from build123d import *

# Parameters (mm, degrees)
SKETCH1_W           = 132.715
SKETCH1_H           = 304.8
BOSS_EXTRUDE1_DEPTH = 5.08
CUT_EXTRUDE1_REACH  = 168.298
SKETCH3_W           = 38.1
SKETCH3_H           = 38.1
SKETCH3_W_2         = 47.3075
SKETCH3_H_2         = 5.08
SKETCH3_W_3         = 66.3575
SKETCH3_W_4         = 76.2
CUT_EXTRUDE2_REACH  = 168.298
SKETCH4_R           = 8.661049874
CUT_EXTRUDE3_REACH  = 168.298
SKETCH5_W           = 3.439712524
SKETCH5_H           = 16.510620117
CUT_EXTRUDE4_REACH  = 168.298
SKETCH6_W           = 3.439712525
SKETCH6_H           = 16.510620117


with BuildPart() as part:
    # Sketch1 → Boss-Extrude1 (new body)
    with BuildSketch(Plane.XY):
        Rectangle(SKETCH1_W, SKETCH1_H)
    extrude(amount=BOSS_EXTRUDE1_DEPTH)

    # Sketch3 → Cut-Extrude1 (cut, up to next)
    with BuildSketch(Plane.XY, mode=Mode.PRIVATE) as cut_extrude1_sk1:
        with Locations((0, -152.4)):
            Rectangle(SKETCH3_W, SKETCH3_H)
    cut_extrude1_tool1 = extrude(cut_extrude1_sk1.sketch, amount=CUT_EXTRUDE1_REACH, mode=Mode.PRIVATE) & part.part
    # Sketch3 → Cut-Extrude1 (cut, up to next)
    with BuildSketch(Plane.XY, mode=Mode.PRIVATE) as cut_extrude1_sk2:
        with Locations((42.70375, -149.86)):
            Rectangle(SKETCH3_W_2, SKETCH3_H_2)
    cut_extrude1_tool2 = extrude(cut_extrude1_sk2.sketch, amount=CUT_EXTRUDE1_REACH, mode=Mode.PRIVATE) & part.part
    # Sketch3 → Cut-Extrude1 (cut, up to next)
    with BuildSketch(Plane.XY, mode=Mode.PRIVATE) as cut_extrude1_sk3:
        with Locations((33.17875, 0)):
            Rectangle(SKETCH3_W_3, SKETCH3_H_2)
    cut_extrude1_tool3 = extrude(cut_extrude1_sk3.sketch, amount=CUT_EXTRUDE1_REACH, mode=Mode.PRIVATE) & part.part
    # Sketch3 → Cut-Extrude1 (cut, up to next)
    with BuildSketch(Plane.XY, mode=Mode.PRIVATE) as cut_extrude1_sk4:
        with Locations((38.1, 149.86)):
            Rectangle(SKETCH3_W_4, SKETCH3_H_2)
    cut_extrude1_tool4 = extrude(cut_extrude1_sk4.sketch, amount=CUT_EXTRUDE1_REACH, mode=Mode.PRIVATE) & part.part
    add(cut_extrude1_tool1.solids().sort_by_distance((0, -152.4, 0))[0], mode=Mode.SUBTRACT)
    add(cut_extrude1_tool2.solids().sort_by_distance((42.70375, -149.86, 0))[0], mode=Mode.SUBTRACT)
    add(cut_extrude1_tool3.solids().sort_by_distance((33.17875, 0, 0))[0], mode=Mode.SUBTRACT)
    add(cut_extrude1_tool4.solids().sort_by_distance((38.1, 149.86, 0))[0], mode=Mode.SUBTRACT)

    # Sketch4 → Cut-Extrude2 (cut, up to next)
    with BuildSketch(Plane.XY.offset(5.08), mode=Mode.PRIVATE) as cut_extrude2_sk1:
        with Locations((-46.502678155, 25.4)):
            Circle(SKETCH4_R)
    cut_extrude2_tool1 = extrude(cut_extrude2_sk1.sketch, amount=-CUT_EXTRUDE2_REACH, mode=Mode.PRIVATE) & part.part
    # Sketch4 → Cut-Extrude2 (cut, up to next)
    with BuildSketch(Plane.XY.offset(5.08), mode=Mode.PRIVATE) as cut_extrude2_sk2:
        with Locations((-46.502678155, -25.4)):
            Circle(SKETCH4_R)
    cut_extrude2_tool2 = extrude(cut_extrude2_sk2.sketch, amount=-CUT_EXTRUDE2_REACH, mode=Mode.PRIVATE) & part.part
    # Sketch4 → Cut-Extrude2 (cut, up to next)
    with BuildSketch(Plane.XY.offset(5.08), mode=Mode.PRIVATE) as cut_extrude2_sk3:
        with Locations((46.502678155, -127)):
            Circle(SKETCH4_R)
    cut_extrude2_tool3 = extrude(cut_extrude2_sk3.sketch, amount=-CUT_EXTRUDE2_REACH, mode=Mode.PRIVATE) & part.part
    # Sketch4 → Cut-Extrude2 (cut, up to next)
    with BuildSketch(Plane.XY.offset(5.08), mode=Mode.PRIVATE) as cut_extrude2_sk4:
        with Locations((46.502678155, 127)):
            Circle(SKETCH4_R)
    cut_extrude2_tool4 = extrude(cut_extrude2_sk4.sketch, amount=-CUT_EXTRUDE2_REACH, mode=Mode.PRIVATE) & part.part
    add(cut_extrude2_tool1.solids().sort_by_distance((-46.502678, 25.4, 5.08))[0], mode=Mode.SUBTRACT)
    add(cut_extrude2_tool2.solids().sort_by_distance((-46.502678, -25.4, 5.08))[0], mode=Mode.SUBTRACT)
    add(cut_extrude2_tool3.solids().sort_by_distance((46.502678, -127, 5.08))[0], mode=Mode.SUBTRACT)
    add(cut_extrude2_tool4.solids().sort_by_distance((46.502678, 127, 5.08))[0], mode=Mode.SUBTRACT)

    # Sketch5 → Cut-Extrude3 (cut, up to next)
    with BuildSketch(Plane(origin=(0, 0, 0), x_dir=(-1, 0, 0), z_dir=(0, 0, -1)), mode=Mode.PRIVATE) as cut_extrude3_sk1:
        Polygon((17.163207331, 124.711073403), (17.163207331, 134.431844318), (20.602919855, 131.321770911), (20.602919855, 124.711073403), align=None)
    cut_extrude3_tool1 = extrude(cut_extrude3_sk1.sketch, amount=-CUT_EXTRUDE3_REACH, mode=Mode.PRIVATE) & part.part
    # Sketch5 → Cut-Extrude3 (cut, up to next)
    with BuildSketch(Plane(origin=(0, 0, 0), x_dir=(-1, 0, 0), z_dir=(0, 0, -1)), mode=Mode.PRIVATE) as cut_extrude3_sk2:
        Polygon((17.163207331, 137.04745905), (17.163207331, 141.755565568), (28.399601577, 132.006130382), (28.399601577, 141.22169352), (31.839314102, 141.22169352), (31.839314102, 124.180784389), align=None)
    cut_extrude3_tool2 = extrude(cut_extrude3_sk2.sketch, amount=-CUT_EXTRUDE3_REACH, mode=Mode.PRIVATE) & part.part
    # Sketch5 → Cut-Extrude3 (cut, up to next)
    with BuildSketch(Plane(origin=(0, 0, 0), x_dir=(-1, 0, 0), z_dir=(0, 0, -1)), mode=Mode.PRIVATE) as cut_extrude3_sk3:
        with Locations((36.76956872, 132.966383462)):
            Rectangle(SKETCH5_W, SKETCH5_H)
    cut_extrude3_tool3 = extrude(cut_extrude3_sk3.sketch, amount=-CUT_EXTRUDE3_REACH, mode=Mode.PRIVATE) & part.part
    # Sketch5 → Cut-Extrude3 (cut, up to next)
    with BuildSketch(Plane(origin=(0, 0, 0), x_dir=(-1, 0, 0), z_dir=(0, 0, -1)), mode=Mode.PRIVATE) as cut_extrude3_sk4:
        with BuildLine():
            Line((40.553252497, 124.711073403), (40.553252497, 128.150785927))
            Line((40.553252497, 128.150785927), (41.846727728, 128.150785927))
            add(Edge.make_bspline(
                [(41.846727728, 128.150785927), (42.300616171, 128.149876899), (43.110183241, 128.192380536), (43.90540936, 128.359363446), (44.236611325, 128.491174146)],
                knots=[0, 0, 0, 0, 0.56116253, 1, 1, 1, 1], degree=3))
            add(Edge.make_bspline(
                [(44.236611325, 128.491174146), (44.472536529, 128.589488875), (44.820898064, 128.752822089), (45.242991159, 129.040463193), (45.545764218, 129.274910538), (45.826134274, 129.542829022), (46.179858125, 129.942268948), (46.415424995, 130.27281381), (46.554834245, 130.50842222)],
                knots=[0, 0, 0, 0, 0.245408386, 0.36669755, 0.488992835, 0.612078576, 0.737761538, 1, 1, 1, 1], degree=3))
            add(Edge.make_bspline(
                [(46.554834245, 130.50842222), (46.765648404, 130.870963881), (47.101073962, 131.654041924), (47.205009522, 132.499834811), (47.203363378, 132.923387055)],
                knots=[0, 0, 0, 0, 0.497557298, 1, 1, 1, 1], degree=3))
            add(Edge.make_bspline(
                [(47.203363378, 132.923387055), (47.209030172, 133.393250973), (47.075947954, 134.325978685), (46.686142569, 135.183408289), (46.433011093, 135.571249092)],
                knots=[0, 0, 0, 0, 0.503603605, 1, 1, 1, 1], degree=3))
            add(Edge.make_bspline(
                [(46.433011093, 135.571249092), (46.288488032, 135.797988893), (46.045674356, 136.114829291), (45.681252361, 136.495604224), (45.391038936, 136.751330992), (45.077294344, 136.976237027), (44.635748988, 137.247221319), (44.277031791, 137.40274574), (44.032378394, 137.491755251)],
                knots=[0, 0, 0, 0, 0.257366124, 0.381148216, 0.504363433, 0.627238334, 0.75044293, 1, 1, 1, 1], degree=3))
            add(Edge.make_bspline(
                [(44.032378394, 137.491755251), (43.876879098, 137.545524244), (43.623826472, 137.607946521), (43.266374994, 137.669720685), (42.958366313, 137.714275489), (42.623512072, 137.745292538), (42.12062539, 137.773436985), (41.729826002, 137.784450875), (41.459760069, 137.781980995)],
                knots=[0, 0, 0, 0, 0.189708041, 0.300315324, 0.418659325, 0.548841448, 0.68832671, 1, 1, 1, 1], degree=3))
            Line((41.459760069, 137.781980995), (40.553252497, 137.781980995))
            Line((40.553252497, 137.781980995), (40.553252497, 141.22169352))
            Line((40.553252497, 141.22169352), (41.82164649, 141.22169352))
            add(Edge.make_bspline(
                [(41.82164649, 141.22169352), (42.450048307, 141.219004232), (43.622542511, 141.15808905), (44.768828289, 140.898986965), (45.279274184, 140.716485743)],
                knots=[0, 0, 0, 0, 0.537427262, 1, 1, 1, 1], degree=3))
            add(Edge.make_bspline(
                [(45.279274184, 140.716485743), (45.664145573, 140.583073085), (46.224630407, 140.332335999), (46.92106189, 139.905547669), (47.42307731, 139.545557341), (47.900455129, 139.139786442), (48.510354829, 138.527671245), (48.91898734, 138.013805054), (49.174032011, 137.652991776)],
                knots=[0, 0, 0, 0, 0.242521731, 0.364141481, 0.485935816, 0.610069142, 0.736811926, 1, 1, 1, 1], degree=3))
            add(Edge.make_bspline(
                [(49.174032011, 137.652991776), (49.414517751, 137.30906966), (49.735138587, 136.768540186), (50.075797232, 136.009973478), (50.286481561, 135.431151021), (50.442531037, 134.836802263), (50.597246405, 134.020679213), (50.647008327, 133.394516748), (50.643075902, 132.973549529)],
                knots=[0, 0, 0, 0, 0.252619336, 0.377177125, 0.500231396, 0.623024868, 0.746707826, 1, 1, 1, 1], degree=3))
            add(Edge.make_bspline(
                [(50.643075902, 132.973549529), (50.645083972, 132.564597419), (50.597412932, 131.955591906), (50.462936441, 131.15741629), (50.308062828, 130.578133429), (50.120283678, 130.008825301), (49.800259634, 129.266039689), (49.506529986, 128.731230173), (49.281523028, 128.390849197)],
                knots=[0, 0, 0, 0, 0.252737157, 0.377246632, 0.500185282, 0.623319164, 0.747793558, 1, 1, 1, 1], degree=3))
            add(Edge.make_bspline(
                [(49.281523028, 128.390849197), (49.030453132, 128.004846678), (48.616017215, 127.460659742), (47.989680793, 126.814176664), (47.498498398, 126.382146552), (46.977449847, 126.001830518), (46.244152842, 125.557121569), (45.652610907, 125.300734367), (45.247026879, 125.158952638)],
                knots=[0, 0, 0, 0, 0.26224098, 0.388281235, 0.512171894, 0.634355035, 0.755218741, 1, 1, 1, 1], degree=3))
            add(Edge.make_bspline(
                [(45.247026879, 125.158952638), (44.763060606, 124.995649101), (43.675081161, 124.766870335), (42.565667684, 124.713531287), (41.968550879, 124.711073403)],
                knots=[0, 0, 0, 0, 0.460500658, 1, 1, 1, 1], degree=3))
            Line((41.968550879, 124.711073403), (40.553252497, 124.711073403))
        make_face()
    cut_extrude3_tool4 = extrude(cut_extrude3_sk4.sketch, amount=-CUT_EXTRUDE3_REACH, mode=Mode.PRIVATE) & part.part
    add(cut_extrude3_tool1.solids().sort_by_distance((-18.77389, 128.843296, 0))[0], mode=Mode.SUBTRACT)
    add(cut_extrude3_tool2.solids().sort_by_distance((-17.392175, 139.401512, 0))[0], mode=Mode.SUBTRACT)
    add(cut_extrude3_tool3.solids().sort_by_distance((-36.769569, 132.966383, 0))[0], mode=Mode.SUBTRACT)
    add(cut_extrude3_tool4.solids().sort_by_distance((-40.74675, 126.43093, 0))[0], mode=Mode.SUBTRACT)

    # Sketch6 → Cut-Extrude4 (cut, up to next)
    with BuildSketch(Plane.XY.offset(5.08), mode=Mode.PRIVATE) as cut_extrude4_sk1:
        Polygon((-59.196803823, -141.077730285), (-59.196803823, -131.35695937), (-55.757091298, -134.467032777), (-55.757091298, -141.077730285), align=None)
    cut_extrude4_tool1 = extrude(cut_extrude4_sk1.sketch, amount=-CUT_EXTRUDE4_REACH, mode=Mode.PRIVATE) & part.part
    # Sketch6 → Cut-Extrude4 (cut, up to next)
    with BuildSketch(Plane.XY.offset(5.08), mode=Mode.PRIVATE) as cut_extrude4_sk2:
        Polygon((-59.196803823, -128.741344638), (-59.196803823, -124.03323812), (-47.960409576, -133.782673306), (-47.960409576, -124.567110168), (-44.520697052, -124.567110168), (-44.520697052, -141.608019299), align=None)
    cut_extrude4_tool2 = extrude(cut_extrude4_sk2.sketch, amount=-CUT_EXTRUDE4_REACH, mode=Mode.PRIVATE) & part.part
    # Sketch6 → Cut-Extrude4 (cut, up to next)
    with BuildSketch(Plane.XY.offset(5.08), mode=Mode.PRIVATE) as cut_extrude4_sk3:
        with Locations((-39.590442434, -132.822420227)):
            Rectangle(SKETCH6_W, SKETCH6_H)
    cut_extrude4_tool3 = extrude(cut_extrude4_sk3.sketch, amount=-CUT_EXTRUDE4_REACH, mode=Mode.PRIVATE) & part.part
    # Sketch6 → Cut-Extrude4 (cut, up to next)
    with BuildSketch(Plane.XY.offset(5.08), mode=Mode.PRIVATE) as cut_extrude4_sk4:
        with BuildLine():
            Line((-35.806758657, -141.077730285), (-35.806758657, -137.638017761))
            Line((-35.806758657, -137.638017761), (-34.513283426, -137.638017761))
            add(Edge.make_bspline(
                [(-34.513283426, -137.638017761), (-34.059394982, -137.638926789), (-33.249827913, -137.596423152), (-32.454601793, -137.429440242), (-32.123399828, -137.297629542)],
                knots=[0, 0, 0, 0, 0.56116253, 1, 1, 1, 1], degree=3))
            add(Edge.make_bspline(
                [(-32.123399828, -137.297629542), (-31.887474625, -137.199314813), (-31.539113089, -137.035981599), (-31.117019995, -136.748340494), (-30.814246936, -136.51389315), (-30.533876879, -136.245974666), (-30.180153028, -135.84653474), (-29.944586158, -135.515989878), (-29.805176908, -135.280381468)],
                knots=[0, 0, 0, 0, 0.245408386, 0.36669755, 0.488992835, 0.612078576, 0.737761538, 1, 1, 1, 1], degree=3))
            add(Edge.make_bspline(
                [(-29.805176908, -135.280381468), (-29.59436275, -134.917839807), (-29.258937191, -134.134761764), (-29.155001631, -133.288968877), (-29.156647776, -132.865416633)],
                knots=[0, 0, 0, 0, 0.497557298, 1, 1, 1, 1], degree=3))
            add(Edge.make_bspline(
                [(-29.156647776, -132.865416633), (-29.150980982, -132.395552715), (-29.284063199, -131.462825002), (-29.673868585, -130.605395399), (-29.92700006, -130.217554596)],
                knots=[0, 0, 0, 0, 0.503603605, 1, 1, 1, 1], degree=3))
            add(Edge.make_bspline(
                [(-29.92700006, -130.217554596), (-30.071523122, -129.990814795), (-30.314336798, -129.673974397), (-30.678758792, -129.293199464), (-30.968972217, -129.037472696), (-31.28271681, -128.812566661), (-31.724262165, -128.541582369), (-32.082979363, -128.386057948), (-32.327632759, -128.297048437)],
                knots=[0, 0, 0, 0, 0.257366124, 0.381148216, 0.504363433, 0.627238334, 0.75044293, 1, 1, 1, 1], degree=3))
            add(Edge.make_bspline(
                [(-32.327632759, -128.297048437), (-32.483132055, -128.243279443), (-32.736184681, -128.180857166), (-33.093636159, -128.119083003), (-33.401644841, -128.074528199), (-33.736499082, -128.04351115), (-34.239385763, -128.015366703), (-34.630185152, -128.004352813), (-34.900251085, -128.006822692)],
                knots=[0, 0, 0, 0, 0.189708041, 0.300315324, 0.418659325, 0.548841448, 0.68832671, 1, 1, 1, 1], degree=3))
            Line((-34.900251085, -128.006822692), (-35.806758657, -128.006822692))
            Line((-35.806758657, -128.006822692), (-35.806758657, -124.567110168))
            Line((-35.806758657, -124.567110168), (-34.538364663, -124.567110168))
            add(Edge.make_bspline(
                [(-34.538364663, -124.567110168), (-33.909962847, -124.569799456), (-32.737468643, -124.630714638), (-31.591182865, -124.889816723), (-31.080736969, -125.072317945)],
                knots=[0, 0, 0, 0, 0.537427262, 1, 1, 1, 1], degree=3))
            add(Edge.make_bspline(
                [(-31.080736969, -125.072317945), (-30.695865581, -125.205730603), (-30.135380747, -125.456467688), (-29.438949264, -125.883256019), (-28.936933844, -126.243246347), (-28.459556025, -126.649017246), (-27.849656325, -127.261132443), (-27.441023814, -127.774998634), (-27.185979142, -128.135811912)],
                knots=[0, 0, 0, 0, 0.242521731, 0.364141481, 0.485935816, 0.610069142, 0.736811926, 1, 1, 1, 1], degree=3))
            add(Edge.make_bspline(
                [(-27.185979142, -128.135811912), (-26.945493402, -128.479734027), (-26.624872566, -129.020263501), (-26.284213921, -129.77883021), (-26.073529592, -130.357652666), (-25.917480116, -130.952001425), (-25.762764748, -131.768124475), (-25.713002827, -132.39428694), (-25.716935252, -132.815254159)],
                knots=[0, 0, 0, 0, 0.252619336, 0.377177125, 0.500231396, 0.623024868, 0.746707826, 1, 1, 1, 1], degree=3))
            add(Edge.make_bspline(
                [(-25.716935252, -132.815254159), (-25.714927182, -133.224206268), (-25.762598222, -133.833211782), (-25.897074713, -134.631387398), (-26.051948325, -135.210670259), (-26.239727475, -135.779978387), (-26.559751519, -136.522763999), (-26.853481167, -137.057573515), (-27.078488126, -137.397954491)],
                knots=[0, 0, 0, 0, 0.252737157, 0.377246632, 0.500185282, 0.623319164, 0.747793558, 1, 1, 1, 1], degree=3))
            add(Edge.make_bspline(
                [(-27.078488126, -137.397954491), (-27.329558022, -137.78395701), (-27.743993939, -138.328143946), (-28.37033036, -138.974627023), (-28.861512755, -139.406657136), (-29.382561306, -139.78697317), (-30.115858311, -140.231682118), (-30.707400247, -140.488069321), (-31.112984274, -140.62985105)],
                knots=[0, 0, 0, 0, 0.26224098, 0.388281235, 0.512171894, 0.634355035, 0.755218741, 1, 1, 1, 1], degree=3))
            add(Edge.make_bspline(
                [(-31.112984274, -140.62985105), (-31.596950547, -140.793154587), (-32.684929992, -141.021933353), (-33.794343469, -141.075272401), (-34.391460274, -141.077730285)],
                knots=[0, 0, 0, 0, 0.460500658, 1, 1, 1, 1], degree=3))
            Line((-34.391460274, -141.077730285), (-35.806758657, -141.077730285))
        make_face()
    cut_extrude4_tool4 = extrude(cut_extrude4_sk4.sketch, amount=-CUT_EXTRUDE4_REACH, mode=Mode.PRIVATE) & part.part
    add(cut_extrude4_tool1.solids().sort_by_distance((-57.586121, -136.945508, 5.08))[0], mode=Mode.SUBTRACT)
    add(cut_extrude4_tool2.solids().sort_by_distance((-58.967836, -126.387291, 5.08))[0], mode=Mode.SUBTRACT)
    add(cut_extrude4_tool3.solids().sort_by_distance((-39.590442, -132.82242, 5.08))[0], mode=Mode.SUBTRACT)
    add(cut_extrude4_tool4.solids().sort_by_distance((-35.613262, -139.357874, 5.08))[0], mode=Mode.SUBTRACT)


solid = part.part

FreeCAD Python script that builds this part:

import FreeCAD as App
import Part
import Sketcher

V = App.Vector
Q = App.Units.Quantity


def add_polygon(sketch, points):
    """Adds a closed chain of lines whose ends are joined by coincident constraints."""
    first, n = sketch.GeometryCount, len(points)
    for a, b in zip(points, points[1:] + points[:1]):
        sketch.addGeometry(Part.LineSegment(App.Vector(*a, 0), App.Vector(*b, 0)), False)
    for i in range(n):
        sketch.addConstraint(Sketcher.Constraint("Coincident", first + i, 2, first + (i + 1) % n, 1))

doc = App.newDocument("Part")
params = doc.addObject("Spreadsheet::Sheet", "Params")
for row, (alias, value) in enumerate([
    ("sketch1_height", "12 in"),
    ("sketch1_width", "5.225 in"),
    ("pad1_length", "0.2 in"),
    ("sketch2_width", "1.5 in"),
    ("sketch3_height", "0.2 in"),
    ("sketch4_height", "0.2 in"),
    ("sketch5_width", "3 in"),
    ("sketch5_height", "0.2 in"),
], start=1):
    params.set(f"A{row}", alias)
    params.set(f"B{row}", "=" + value)
    params.setAlias(f"B{row}", alias)

body = doc.addObject("PartDesign::Body", "Body")

# Sketch on XY plane
sketch1 = doc.addObject("Sketcher::SketchObject", "Sketch")
body.addObject(sketch1)
sketch1.AttachmentSupport = (doc.XY_Plane, [""])
sketch1.MapMode = "FlatFace"
add_polygon(sketch1, [(-66.3575, 152.4), (-66.3575, -152.4), (66.3575, -152.4), (66.3575, 152.4)])  # lines 0-3
sketch1.addConstraint([
    Sketcher.Constraint("Vertical", 0),
    Sketcher.Constraint("Horizontal", 1),
    Sketcher.Constraint("Vertical", 2),
    Sketcher.Constraint("Horizontal", 3),
    Sketcher.Constraint("Symmetric", 0, 2, 2, 2, -1, 1),
    Sketcher.Constraint("DistanceY", 0, 2, 0, 1, Q("12 in")),
    Sketcher.Constraint("DistanceX", 1, 1, 1, 2, Q("5.225 in")),
])
sketch1.setExpression("Constraints[9]", "Params.sketch1_height")
sketch1.setExpression("Constraints[10]", "Params.sketch1_width")
pad1 = doc.addObject("PartDesign::Pad", "Pad")
body.addObject(pad1)
pad1.Profile = sketch1
pad1.setExpression("Length", "Params.pad1_length")

# Sketch on XY plane
sketch2 = doc.addObject("Sketcher::SketchObject", "Sketch001")
body.addObject(sketch2)
sketch2.AttachmentSupport = (doc.XY_Plane, [""])
sketch2.MapMode = "FlatFace"
add_polygon(sketch2, [(-19.05, -133.35), (-19.05, -171.45), (19.05, -171.45), (19.05, -133.35)])  # lines 0-3
sketch2.addConstraint([
    Sketcher.Constraint("Vertical", 0),
    Sketcher.Constraint("Horizontal", 1),
    Sketcher.Constraint("Vertical", 2),
    Sketcher.Constraint("Horizontal", 3),
    Sketcher.Constraint("Equal", 3, 0),
    Sketcher.Constraint("DistanceX", 1, 1, 1, 2, Q("1.5 in")),
    Sketcher.Constraint("DistanceX", 0, 2, -1, 1, Q("0.75 in")),
    Sketcher.Constraint("DistanceY", 0, 2, -1, 1, Q("6.75 in")),
])
sketch2.setExpression("Constraints[9]", "Params.sketch2_width")
pocket1 = doc.addObject("PartDesign::Pocket", "Pocket")
body.addObject(pocket1)
pocket1.Profile = sketch2
pocket1.Type = "UpToFirst"
pocket1.Reversed = True

# Sketch on XY plane
sketch3 = doc.addObject("Sketcher::SketchObject", "Sketch002")
body.addObject(sketch3)
sketch3.AttachmentSupport = (doc.XY_Plane, [""])
sketch3.MapMode = "FlatFace"
add_polygon(sketch3, [(19.05, -147.32), (19.05, -152.4), (66.3575, -152.4), (66.3575, -147.32)])  # lines 0-3
sketch3.addConstraint([
    Sketcher.Constraint("Vertical", 0),
    Sketcher.Constraint("Horizontal", 1),
    Sketcher.Constraint("Vertical", 2),
    Sketcher.Constraint("Horizontal", 3),
    Sketcher.Constraint("DistanceY", 0, 2, 0, 1, Q("0.2 in")),
    Sketcher.Constraint("DistanceY", 0, 2, -1, 1, Q("6 in")),
    Sketcher.Constraint("DistanceX", -1, 1, 0, 2, Q("0.75 in")),
    Sketcher.Constraint("DistanceX", 1, 1, 1, 2, Q("1.8625 in")),
])
sketch3.setExpression("Constraints[8]", "Params.sketch3_height")
pocket2 = doc.addObject("PartDesign::Pocket", "Pocket001")
body.addObject(pocket2)
pocket2.Profile = sketch3
pocket2.Type = "UpToFirst"
pocket2.Reversed = True

# Sketch on XY plane
sketch4 = doc.addObject("Sketcher::SketchObject", "Sketch003")
body.addObject(sketch4)
sketch4.AttachmentSupport = (doc.XY_Plane, [""])
sketch4.MapMode = "FlatFace"
add_polygon(sketch4, [(0, 2.54), (0, -2.54), (66.3575, -2.54), (66.3575, 2.54)])  # lines 0-3
sketch4.addConstraint([
    Sketcher.Constraint("Vertical", 0),
    Sketcher.Constraint("Horizontal", 1),
    Sketcher.Constraint("Vertical", 2),
    Sketcher.Constraint("Horizontal", 3),
    Sketcher.Constraint("Symmetric", 0, 2, 3, 2, -1, 1),
    Sketcher.Constraint("DistanceY", 0, 2, 0, 1, Q("0.2 in")),
    Sketcher.Constraint("DistanceX", 1, 1, 1, 2, Q("2.6125 in")),
])
sketch4.setExpression("Constraints[9]", "Params.sketch4_height")
pocket3 = doc.addObject("PartDesign::Pocket", "Pocket002")
body.addObject(pocket3)
pocket3.Profile = sketch4
pocket3.Type = "UpToFirst"
pocket3.Reversed = True

# Sketch on XY plane
sketch5 = doc.addObject("Sketcher::SketchObject", "Sketch004")
body.addObject(sketch5)
sketch5.AttachmentSupport = (doc.XY_Plane, [""])
sketch5.MapMode = "FlatFace"
add_polygon(sketch5, [(0, 152.4), (0, 147.32), (76.2, 147.32), (76.2, 152.4)])  # lines 0-3
sketch5.addConstraint([
    Sketcher.Constraint("Vertical", 0),
    Sketcher.Constraint("Horizontal", 1),
    Sketcher.Constraint("Vertical", 2),
    Sketcher.Constraint("Horizontal", 3),
    Sketcher.Constraint("PointOnObject", 0, 2, -2),
    Sketcher.Constraint("DistanceX", 1, 1, 1, 2, Q("3 in")),
    Sketcher.Constraint("DistanceY", 0, 2, 0, 1, Q("0.2 in")),
    Sketcher.Constraint("DistanceY", -1, 1, 2, 2, Q("6 in")),
])
sketch5.setExpression("Constraints[9]", "Params.sketch5_width")
sketch5.setExpression("Constraints[10]", "Params.sketch5_height")
pocket4 = doc.addObject("PartDesign::Pocket", "Pocket003")
body.addObject(pocket4)
pocket4.Profile = sketch5
pocket4.Type = "UpToFirst"
pocket4.Reversed = True

# Sketch on XY plane
sketch6 = doc.addObject("Sketcher::SketchObject", "Sketch005")
body.addObject(sketch6)
sketch6.AttachmentSupport = (doc.XY_Plane, [""])
sketch6.MapMode = "FlatFace"
sketch6.AttachmentOffset = App.Placement(V(0, 0, 0.2 * 25.4), App.Rotation())
sketch6.addGeometry(Part.Circle(V(-46.502678, 25.4, 0), V(0, 0, 1), 8.66105), False)
sketch6.addConstraint([
    Sketcher.Constraint("DistanceY", -1, 1, 0, 3, Q("1 in")),
    Sketcher.Constraint("Diameter", 0, 17.3221),
    Sketcher.Constraint("DistanceX", 0, 3, -1, 1, 46.502678),
])
pocket5 = doc.addObject("PartDesign::Pocket", "Pocket004")
body.addObject(pocket5)
pocket5.Profile = sketch6
pocket5.Type = "UpToFirst"

# Sketch on XY plane
sketch7 = doc.addObject("Sketcher::SketchObject", "Sketch006")
body.addObject(sketch7)
sketch7.AttachmentSupport = (doc.XY_Plane, [""])
sketch7.MapMode = "FlatFace"
sketch7.AttachmentOffset = App.Placement(V(0, 0, 0.2 * 25.4), App.Rotation())
sketch7.addGeometry(Part.Circle(V(-46.502678, -25.4, 0), V(0, 0, 1), 8.66105), False)
sketch7.addConstraint([
    Sketcher.Constraint("DistanceY", 0, 3, -1, 1, Q("1 in")),
    Sketcher.Constraint("Diameter", 0, 17.3221),
    Sketcher.Constraint("DistanceX", 0, 3, -1, 1, 46.502678),
])
pocket6 = doc.addObject("PartDesign::Pocket", "Pocket005")
body.addObject(pocket6)
pocket6.Profile = sketch7
pocket6.Type = "UpToFirst"

# Sketch on XY plane
sketch8 = doc.addObject("Sketcher::SketchObject", "Sketch007")
body.addObject(sketch8)
sketch8.AttachmentSupport = (doc.XY_Plane, [""])
sketch8.MapMode = "FlatFace"
sketch8.AttachmentOffset = App.Placement(V(0, 0, 0.2 * 25.4), App.Rotation())
sketch8.addGeometry(Part.Circle(V(46.502678, -127, 0), V(0, 0, 1), 8.66105), False)
sketch8.addConstraint([
    Sketcher.Constraint("DistanceY", 0, 3, -1, 1, Q("5 in")),
    Sketcher.Constraint("Diameter", 0, 17.3221),
    Sketcher.Constraint("DistanceX", -1, 1, 0, 3, 46.502678),
])
pocket7 = doc.addObject("PartDesign::Pocket", "Pocket006")
body.addObject(pocket7)
pocket7.Profile = sketch8
pocket7.Type = "UpToFirst"

# Sketch on XY plane
sketch9 = doc.addObject("Sketcher::SketchObject", "Sketch008")
body.addObject(sketch9)
sketch9.AttachmentSupport = (doc.XY_Plane, [""])
sketch9.MapMode = "FlatFace"
sketch9.AttachmentOffset = App.Placement(V(0, 0, 0.2 * 25.4), App.Rotation())
sketch9.addGeometry(Part.Circle(V(46.502678, 127, 0), V(0, 0, 1), 8.66105), False)
sketch9.addConstraint([
    Sketcher.Constraint("DistanceY", -1, 1, 0, 3, Q("5 in")),
    Sketcher.Constraint("Diameter", 0, 17.3221),
    Sketcher.Constraint("DistanceX", -1, 1, 0, 3, 46.502678),
])
pocket8 = doc.addObject("PartDesign::Pocket", "Pocket007")
body.addObject(pocket8)
pocket8.Profile = sketch9
pocket8.Type = "UpToFirst"

# Sketch on XY plane
sketch10 = doc.addObject("Sketcher::SketchObject", "Sketch009")
body.addObject(sketch10)
sketch10.AttachmentSupport = (doc.XY_Plane, [""])
sketch10.MapMode = "FlatFace"
add_polygon(sketch10, [(-17.163207, 134.431844), (-17.163207, 124.711073), (-20.60292, 124.711073), (-20.60292, 131.321771)])  # lines 0-3
sketch10.addConstraint([
    Sketcher.Constraint("Vertical", 0),
    Sketcher.Constraint("Horizontal", 1),
    Sketcher.Constraint("Vertical", 2),
    Sketcher.Constraint("DistanceY", 0, 2, 0, 1, 9.720771),
    Sketcher.Constraint("Distance", 3, 4.63726),
    Sketcher.Constraint("DistanceX", 1, 2, 1, 1, 3.439713),
    Sketcher.Constraint("DistanceX", 1, 2, -1, 1, 20.60292),
    Sketcher.Constraint("DistanceY", -1, 1, 2, 2, 131.321771),
])
pocket9 = doc.addObject("PartDesign::Pocket", "Pocket008")
body.addObject(pocket9)
pocket9.Profile = sketch10
pocket9.Type = "UpToFirst"
pocket9.Reversed = True

# Sketch on XY plane
sketch11 = doc.addObject("Sketcher::SketchObject", "Sketch010")
body.addObject(sketch11)
sketch11.AttachmentSupport = (doc.XY_Plane, [""])
sketch11.MapMode = "FlatFace"
add_polygon(sketch11, [(-17.163207, 141.755566), (-17.163207, 137.047459), (-31.839314, 124.180784), (-31.839314, 141.221694), (-28.399602, 141.221694), (-28.399602, 132.00613)])  # lines 0-5
sketch11.addConstraint([
    Sketcher.Constraint("Vertical", 0),
    Sketcher.Constraint("Vertical", 2),
    Sketcher.Constraint("Horizontal", 3),
    Sketcher.Constraint("Vertical", 4),
    Sketcher.Constraint("DistanceY", 2, 1, 2, 2, 17.040909),
    Sketcher.Constraint("DistanceX", 3, 2, -1, 1, 28.399602),
    Sketcher.Constraint("Distance", 1, 19.51767),
    Sketcher.Constraint("DistanceX", 3, 1, 3, 2, 3.439713),
    Sketcher.Constraint("DistanceY", 0, 2, 0, 1, 4.708107),
    Sketcher.Constraint("DistanceY", 4, 2, 4, 1, 9.215563),
    Sketcher.Constraint("DistanceY", -1, 1, 0, 2, 137.047459),
    Sketcher.Constraint("DistanceY", -1, 1, 4, 2, 132.00613),
])
pocket10 = doc.addObject("PartDesign::Pocket", "Pocket009")
body.addObject(pocket10)
pocket10.Profile = sketch11
pocket10.Type = "UpToFirst"
pocket10.Reversed = True

# Sketch on XY plane
sketch12 = doc.addObject("Sketcher::SketchObject", "Sketch011")
body.addObject(sketch12)
sketch12.AttachmentSupport = (doc.XY_Plane, [""])
sketch12.MapMode = "FlatFace"
add_polygon(sketch12, [(-35.049712, 141.221694), (-35.049712, 124.711073), (-38.489425, 124.711073), (-38.489425, 141.221694)])  # lines 0-3
sketch12.addConstraint([
    Sketcher.Constraint("Vertical", 0),
    Sketcher.Constraint("Horizontal", 1),
    Sketcher.Constraint("Vertical", 2),
    Sketcher.Constraint("Horizontal", 3),
    Sketcher.Constraint("DistanceY", 0, 2, 0, 1, 16.51062),
    Sketcher.Constraint("DistanceX", 1, 2, 1, 1, 3.439713),
    Sketcher.Constraint("DistanceX", 0, 2, -1, 1, 35.049712),
    Sketcher.Constraint("DistanceY", -1, 1, 0, 2, 124.711073),
])
pocket11 = doc.addObject("PartDesign::Pocket", "Pocket010")
body.addObject(pocket11)
pocket11.Profile = sketch12
pocket11.Type = "UpToFirst"
pocket11.Reversed = True

# Sketch on XY plane
sketch13 = doc.addObject("Sketcher::SketchObject", "Sketch012")
body.addObject(sketch13)
sketch13.AttachmentSupport = (doc.XY_Plane, [""])
sketch13.MapMode = "FlatFace"
sketch13.addGeometry([
    Part.LineSegment(V(-40.553252, 128.150786, 0), V(-40.553252, 124.711073, 0)),  # 0
    Part.LineSegment(V(-40.553252, 124.711073, 0), V(-41.968551, 124.711073, 0)),  # 1
    Part.BSplineCurve([V(-45.247027, 125.158953, 0), V(-44.763061, 124.995649, 0), V(-43.675081, 124.76687, 0), V(-42.565668, 124.713531, 0), V(-41.968551, 124.711073, 0)], [4, 1, 4], [0, 0.460500658, 1], False, 3, [1, 1, 1, 1, 1], False),  # 2
    Part.BSplineCurve([V(-49.281523, 128.390849, 0), V(-49.030453, 128.004847, 0), V(-48.616017, 127.46066, 0), V(-47.989681, 126.814177, 0), V(-47.498498, 126.382147, 0), V(-46.97745, 126.001831, 0), V(-46.244153, 125.557122, 0), V(-45.652611, 125.300734, 0), V(-45.247027, 125.158953, 0)], [4, 1, 1, 1, 1, 1, 4], [0, 0.26224098, 0.388281235, 0.512171894, 0.634355035, 0.755218741, 1], False, 3, [1, 1, 1, 1, 1, 1, 1, 1, 1], False),  # 3
    Part.BSplineCurve([V(-50.643076, 132.97355, 0), V(-50.645084, 132.564597, 0), V(-50.597413, 131.955592, 0), V(-50.462936, 131.157416, 0), V(-50.308063, 130.578133, 0), V(-50.120284, 130.008825, 0), V(-49.80026, 129.26604, 0), V(-49.50653, 128.73123, 0), V(-49.281523, 128.390849, 0)], [4, 1, 1, 1, 1, 1, 4], [0, 0.252737157, 0.377246632, 0.500185282, 0.623319164, 0.747793558, 1], False, 3, [1, 1, 1, 1, 1, 1, 1, 1, 1], False),  # 4
    Part.BSplineCurve([V(-49.174032, 137.652992, 0), V(-49.414518, 137.30907, 0), V(-49.735139, 136.76854, 0), V(-50.075797, 136.009973, 0), V(-50.286482, 135.431151, 0), V(-50.442531, 134.836802, 0), V(-50.597246, 134.020679, 0), V(-50.647008, 133.394517, 0), V(-50.643076, 132.97355, 0)], [4, 1, 1, 1, 1, 1, 4], [0, 0.252619336, 0.377177125, 0.500231396, 0.623024868, 0.746707826, 1], False, 3, [1, 1, 1, 1, 1, 1, 1, 1, 1], False),  # 5
    Part.BSplineCurve([V(-45.279274, 140.716486, 0), V(-45.664146, 140.583073, 0), V(-46.22463, 140.332336, 0), V(-46.921062, 139.905548, 0), V(-47.423077, 139.545557, 0), V(-47.900455, 139.139786, 0), V(-48.510355, 138.527671, 0), V(-48.918987, 138.013805, 0), V(-49.174032, 137.652992, 0)], [4, 1, 1, 1, 1, 1, 4], [0, 0.242521731, 0.364141481, 0.485935816, 0.610069142, 0.736811926, 1], False, 3, [1, 1, 1, 1, 1, 1, 1, 1, 1], False),  # 6
    Part.BSplineCurve([V(-41.821646, 141.221694, 0), V(-42.450048, 141.219004, 0), V(-43.622543, 141.158089, 0), V(-44.768828, 140.898987, 0), V(-45.279274, 140.716486, 0)], [4, 1, 4], [0, 0.537427262, 1], False, 3, [1, 1, 1, 1, 1], False),  # 7
    Part.LineSegment(V(-41.821646, 141.221694, 0), V(-40.553252, 141.221694, 0)),  # 8
    Part.LineSegment(V(-40.553252, 141.221694, 0), V(-40.553252, 137.781981, 0)),  # 9
    Part.LineSegment(V(-40.553252, 137.781981, 0), V(-41.45976, 137.781981, 0)),  # 10
    Part.BSplineCurve([V(-44.032378, 137.491755, 0), V(-43.876879, 137.545524, 0), V(-43.623826, 137.607947, 0), V(-43.266375, 137.669721, 0), V(-42.958366, 137.714275, 0), V(-42.623512, 137.745293, 0), V(-42.120625, 137.773437, 0), V(-41.729826, 137.784451, 0), V(-41.45976, 137.781981, 0)], [4, 1, 1, 1, 1, 1, 4], [0, 0.189708041, 0.300315324, 0.418659325, 0.548841448, 0.68832671, 1], False, 3, [1, 1, 1, 1, 1, 1, 1, 1, 1], False),  # 11
    Part.BSplineCurve([V(-46.433011, 135.571249, 0), V(-46.288488, 135.797989, 0), V(-46.045674, 136.114829, 0), V(-45.681252, 136.495604, 0), V(-45.391039, 136.751331, 0), V(-45.077294, 136.976237, 0), V(-44.635749, 137.247221, 0), V(-44.277032, 137.402746, 0), V(-44.032378, 137.491755, 0)], [4, 1, 1, 1, 1, 1, 4], [0, 0.257366124, 0.381148216, 0.504363433, 0.627238334, 0.75044293, 1], False, 3, [1, 1, 1, 1, 1, 1, 1, 1, 1], False),  # 12
    Part.BSplineCurve([V(-47.203363, 132.923387, 0), V(-47.20903, 133.393251, 0), V(-47.075948, 134.325979, 0), V(-46.686143, 135.183408, 0), V(-46.433011, 135.571249, 0)], [4, 1, 4], [0, 0.503603605, 1], False, 3, [1, 1, 1, 1, 1], False),  # 13
    Part.BSplineCurve([V(-46.554834, 130.508422, 0), V(-46.765648, 130.870964, 0), V(-47.101074, 131.654042, 0), V(-47.20501, 132.499835, 0), V(-47.203363, 132.923387, 0)], [4, 1, 4], [0, 0.497557298, 1], False, 3, [1, 1, 1, 1, 1], False),  # 14
    Part.BSplineCurve([V(-44.236611, 128.491174, 0), V(-44.472537, 128.589489, 0), V(-44.820898, 128.752822, 0), V(-45.242991, 129.040463, 0), V(-45.545764, 129.274911, 0), V(-45.826134, 129.542829, 0), V(-46.179858, 129.942269, 0), V(-46.415425, 130.272814, 0), V(-46.554834, 130.508422, 0)], [4, 1, 1, 1, 1, 1, 4], [0, 0.245408386, 0.36669755, 0.488992835, 0.612078576, 0.737761538, 1], False, 3, [1, 1, 1, 1, 1, 1, 1, 1, 1], False),  # 15
    Part.BSplineCurve([V(-41.846728, 128.150786, 0), V(-42.300616, 128.149877, 0), V(-43.110183, 128.192381, 0), V(-43.905409, 128.359363, 0), V(-44.236611, 128.491174, 0)], [4, 1, 4], [0, 0.56116253, 1], False, 3, [1, 1, 1, 1, 1], False),  # 16
    Part.LineSegment(V(-41.846728, 128.150786, 0), V(-40.553252, 128.150786, 0)),  # 17
], False)
sketch13.addConstraint([
    Sketcher.Constraint("Block", 2),
    Sketcher.Constraint("Block", 3),
    Sketcher.Constraint("Block", 4),
    Sketcher.Constraint("Block", 5),
    Sketcher.Constraint("Block", 6),
    Sketcher.Constraint("Block", 7),
    Sketcher.Constraint("Block", 11),
    Sketcher.Constraint("Block", 12),
    Sketcher.Constraint("Block", 13),
    Sketcher.Constraint("Block", 14),
    Sketcher.Constraint("Block", 15),
    Sketcher.Constraint("Block", 16),
    Sketcher.Constraint("Coincident", 0, 2, 1, 1),
    Sketcher.Constraint("Coincident", 1, 2, 2, 2),
    Sketcher.Constraint("Coincident", 7, 1, 8, 1),
    Sketcher.Constraint("Coincident", 8, 2, 9, 1),
    Sketcher.Constraint("Coincident", 9, 2, 10, 1),
    Sketcher.Constraint("Coincident", 10, 2, 11, 2),
    Sketcher.Constraint("Coincident", 16, 1, 17, 1),
    Sketcher.Constraint("Coincident", 17, 2, 0, 1),
    Sketcher.Constraint("Vertical", 0),
    Sketcher.Constraint("Horizontal", 1),
    Sketcher.Constraint("Horizontal", 8),
    Sketcher.Constraint("Vertical", 9),
    Sketcher.Constraint("Horizontal", 10),
    Sketcher.Constraint("Horizontal", 17),
    Sketcher.Constraint("Vertical", 0, 2, 8, 2),
    Sketcher.Constraint("DistanceX", 1, 2, 1, 1, 1.415298),
])
pocket12 = doc.addObject("PartDesign::Pocket", "Pocket011")
body.addObject(pocket12)
pocket12.Profile = sketch13
pocket12.Type = "UpToFirst"
pocket12.Reversed = True

# Sketch on XY plane
sketch14 = doc.addObject("Sketcher::SketchObject", "Sketch013")
body.addObject(sketch14)
sketch14.AttachmentSupport = (doc.XY_Plane, [""])
sketch14.MapMode = "FlatFace"
sketch14.AttachmentOffset = App.Placement(V(0, 0, 0.2 * 25.4), App.Rotation())
add_polygon(sketch14, [(-59.196804, -131.356959), (-59.196804, -141.07773), (-55.757091, -141.07773), (-55.757091, -134.467033)])  # lines 0-3
sketch14.addConstraint([
    Sketcher.Constraint("Vertical", 0),
    Sketcher.Constraint("Horizontal", 1),
    Sketcher.Constraint("Vertical", 2),
    Sketcher.Constraint("DistanceY", 0, 2, 0, 1, 9.720771),
    Sketcher.Constraint("Distance", 3, 4.63726),
    Sketcher.Constraint("DistanceX", 1, 1, 1, 2, 3.439713),
    Sketcher.Constraint("DistanceY", 0, 2, -1, 1, 141.07773),
    Sketcher.Constraint("DistanceX", 1, 2, -1, 1, 55.757091),
])
pocket13 = doc.addObject("PartDesign::Pocket", "Pocket012")
body.addObject(pocket13)
pocket13.Profile = sketch14
pocket13.Type = "UpToFirst"

# Sketch on XY plane
sketch15 = doc.addObject("Sketcher::SketchObject", "Sketch014")
body.addObject(sketch15)
sketch15.AttachmentSupport = (doc.XY_Plane, [""])
sketch15.MapMode = "FlatFace"
sketch15.AttachmentOffset = App.Placement(V(0, 0, 0.2 * 25.4), App.Rotation())
add_polygon(sketch15, [(-59.196804, -124.033238), (-59.196804, -128.741345), (-44.520697, -141.608019), (-44.520697, -124.56711), (-47.96041, -124.56711), (-47.96041, -133.782673)])  # lines 0-5
sketch15.addConstraint([
    Sketcher.Constraint("Vertical", 0),
    Sketcher.Constraint("Vertical", 2),
    Sketcher.Constraint("Horizontal", 3),
    Sketcher.Constraint("Vertical", 4),
    Sketcher.Constraint("DistanceY", 2, 1, 2, 2, 17.040909),
    Sketcher.Constraint("Distance", 1, 19.51767),
    Sketcher.Constraint("DistanceX", 3, 2, 3, 1, 3.439713),
    Sketcher.Constraint("DistanceY", 0, 2, 0, 1, 4.708107),
    Sketcher.Constraint("DistanceY", 4, 2, 4, 1, 9.215563),
    Sketcher.Constraint("DistanceY", 1, 2, -1, 1, 141.608019),
    Sketcher.Constraint("DistanceX", 3, 2, -1, 1, 47.96041),
    Sketcher.Constraint("DistanceY", 5, 2, -1, 1, 124.033238),
])
pocket14 = doc.addObject("PartDesign::Pocket", "Pocket013")
body.addObject(pocket14)
pocket14.Profile = sketch15
pocket14.Type = "UpToFirst"

# Sketch on XY plane
sketch16 = doc.addObject("Sketcher::SketchObject", "Sketch015")
body.addObject(sketch16)
sketch16.AttachmentSupport = (doc.XY_Plane, [""])
sketch16.MapMode = "FlatFace"
sketch16.AttachmentOffset = App.Placement(V(0, 0, 0.2 * 25.4), App.Rotation())
add_polygon(sketch16, [(-41.310299, -124.56711), (-41.310299, -141.07773), (-37.870586, -141.07773), (-37.870586, -124.56711)])  # lines 0-3
sketch16.addConstraint([
    Sketcher.Constraint("Vertical", 0),
    Sketcher.Constraint("Horizontal", 1),
    Sketcher.Constraint("Vertical", 2),
    Sketcher.Constraint("Horizontal", 3),
    Sketcher.Constraint("DistanceY", 0, 2, 0, 1, 16.51062),
    Sketcher.Constraint("DistanceX", 0, 2, -1, 1, 41.310299),
    Sketcher.Constraint("DistanceX", 1, 1, 1, 2, 3.439713),
    Sketcher.Constraint("DistanceY", 0, 2, -1, 1, 141.07773),
])
pocket15 = doc.addObject("PartDesign::Pocket", "Pocket014")
body.addObject(pocket15)
pocket15.Profile = sketch16
pocket15.Type = "UpToFirst"

# Sketch on XY plane
sketch17 = doc.addObject("Sketcher::SketchObject", "Sketch016")
body.addObject(sketch17)
sketch17.AttachmentSupport = (doc.XY_Plane, [""])
sketch17.MapMode = "FlatFace"
sketch17.AttachmentOffset = App.Placement(V(0, 0, 0.2 * 25.4), App.Rotation())
sketch17.addGeometry([
    Part.LineSegment(V(-35.806759, -137.638018, 0), V(-35.806759, -141.07773, 0)),  # 0
    Part.LineSegment(V(-35.806759, -141.07773, 0), V(-34.39146, -141.07773, 0)),  # 1
    Part.BSplineCurve([V(-31.112984, -140.629851, 0), V(-31.596951, -140.793155, 0), V(-32.68493, -141.021933, 0), V(-33.794343, -141.075272, 0), V(-34.39146, -141.07773, 0)], [4, 1, 4], [0, 0.460500658, 1], False, 3, [1, 1, 1, 1, 1], False),  # 2
    Part.BSplineCurve([V(-27.078488, -137.397954, 0), V(-27.329558, -137.783957, 0), V(-27.743994, -138.328144, 0), V(-28.37033, -138.974627, 0), V(-28.861513, -139.406657, 0), V(-29.382561, -139.786973, 0), V(-30.115858, -140.231682, 0), V(-30.7074, -140.488069, 0), V(-31.112984, -140.629851, 0)], [4, 1, 1, 1, 1, 1, 4], [0, 0.26224098, 0.388281235, 0.512171894, 0.634355035, 0.755218741, 1], False, 3, [1, 1, 1, 1, 1, 1, 1, 1, 1], False),  # 3
    Part.BSplineCurve([V(-25.716935, -132.815254, 0), V(-25.714927, -133.224206, 0), V(-25.762598, -133.833212, 0), V(-25.897075, -134.631387, 0), V(-26.051948, -135.21067, 0), V(-26.239727, -135.779978, 0), V(-26.559752, -136.522764, 0), V(-26.853481, -137.057574, 0), V(-27.078488, -137.397954, 0)], [4, 1, 1, 1, 1, 1, 4], [0, 0.252737157, 0.377246632, 0.500185282, 0.623319164, 0.747793558, 1], False, 3, [1, 1, 1, 1, 1, 1, 1, 1, 1], False),  # 4
    Part.BSplineCurve([V(-27.185979, -128.135812, 0), V(-26.945493, -128.479734, 0), V(-26.624873, -129.020264, 0), V(-26.284214, -129.77883, 0), V(-26.07353, -130.357653, 0), V(-25.91748, -130.952001, 0), V(-25.762765, -131.768124, 0), V(-25.713003, -132.394287, 0), V(-25.716935, -132.815254, 0)], [4, 1, 1, 1, 1, 1, 4], [0, 0.252619336, 0.377177125, 0.500231396, 0.623024868, 0.746707826, 1], False, 3, [1, 1, 1, 1, 1, 1, 1, 1, 1], False),  # 5
    Part.BSplineCurve([V(-31.080737, -125.072318, 0), V(-30.695866, -125.205731, 0), V(-30.135381, -125.456468, 0), V(-29.438949, -125.883256, 0), V(-28.936934, -126.243246, 0), V(-28.459556, -126.649017, 0), V(-27.849656, -127.261132, 0), V(-27.441024, -127.774999, 0), V(-27.185979, -128.135812, 0)], [4, 1, 1, 1, 1, 1, 4], [0, 0.242521731, 0.364141481, 0.485935816, 0.610069142, 0.736811926, 1], False, 3, [1, 1, 1, 1, 1, 1, 1, 1, 1], False),  # 6
    Part.BSplineCurve([V(-34.538365, -124.56711, 0), V(-33.909963, -124.569799, 0), V(-32.737469, -124.630715, 0), V(-31.591183, -124.889817, 0), V(-31.080737, -125.072318, 0)], [4, 1, 4], [0, 0.537427262, 1], False, 3, [1, 1, 1, 1, 1], False),  # 7
    Part.LineSegment(V(-34.538365, -124.56711, 0), V(-35.806759, -124.56711, 0)),  # 8
    Part.LineSegment(V(-35.806759, -124.56711, 0), V(-35.806759, -128.006823, 0)),  # 9
    Part.LineSegment(V(-35.806759, -128.006823, 0), V(-34.900251, -128.006823, 0)),  # 10
    Part.BSplineCurve([V(-32.327633, -128.297048, 0), V(-32.483132, -128.243279, 0), V(-32.736185, -128.180857, 0), V(-33.093636, -128.119083, 0), V(-33.401645, -128.074528, 0), V(-33.736499, -128.043511, 0), V(-34.239386, -128.015367, 0), V(-34.630185, -128.004353, 0), V(-34.900251, -128.006823, 0)], [4, 1, 1, 1, 1, 1, 4], [0, 0.189708041, 0.300315324, 0.418659325, 0.548841448, 0.68832671, 1], False, 3, [1, 1, 1, 1, 1, 1, 1, 1, 1], False),  # 11
    Part.BSplineCurve([V(-29.927, -130.217555, 0), V(-30.071523, -129.990815, 0), V(-30.314337, -129.673974, 0), V(-30.678759, -129.293199, 0), V(-30.968972, -129.037473, 0), V(-31.282717, -128.812567, 0), V(-31.724262, -128.541582, 0), V(-32.082979, -128.386058, 0), V(-32.327633, -128.297048, 0)], [4, 1, 1, 1, 1, 1, 4], [0, 0.257366124, 0.381148216, 0.504363433, 0.627238334, 0.75044293, 1], False, 3, [1, 1, 1, 1, 1, 1, 1, 1, 1], False),  # 12
    Part.BSplineCurve([V(-29.156648, -132.865417, 0), V(-29.150981, -132.395553, 0), V(-29.284063, -131.462825, 0), V(-29.673869, -130.605395, 0), V(-29.927, -130.217555, 0)], [4, 1, 4], [0, 0.503603605, 1], False, 3, [1, 1, 1, 1, 1], False),  # 13
    Part.BSplineCurve([V(-29.805177, -135.280381, 0), V(-29.594363, -134.91784, 0), V(-29.258937, -134.134762, 0), V(-29.155002, -133.288969, 0), V(-29.156648, -132.865417, 0)], [4, 1, 4], [0, 0.497557298, 1], False, 3, [1, 1, 1, 1, 1], False),  # 14
    Part.BSplineCurve([V(-32.1234, -137.29763, 0), V(-31.887475, -137.199315, 0), V(-31.539113, -137.035982, 0), V(-31.11702, -136.74834, 0), V(-30.814247, -136.513893, 0), V(-30.533877, -136.245975, 0), V(-30.180153, -135.846535, 0), V(-29.944586, -135.51599, 0), V(-29.805177, -135.280381, 0)], [4, 1, 1, 1, 1, 1, 4], [0, 0.245408386, 0.36669755, 0.488992835, 0.612078576, 0.737761538, 1], False, 3, [1, 1, 1, 1, 1, 1, 1, 1, 1], False),  # 15
    Part.BSplineCurve([V(-34.513283, -137.638018, 0), V(-34.059395, -137.638927, 0), V(-33.249828, -137.596423, 0), V(-32.454602, -137.42944, 0), V(-32.1234, -137.29763, 0)], [4, 1, 4], [0, 0.56116253, 1], False, 3, [1, 1, 1, 1, 1], False),  # 16
    Part.LineSegment(V(-34.513283, -137.638018, 0), V(-35.806759, -137.638018, 0)),  # 17
], False)
sketch17.addConstraint([
    Sketcher.Constraint("Block", 2),
    Sketcher.Constraint("Block", 3),
    Sketcher.Constraint("Block", 4),
    Sketcher.Constraint("Block", 5),
    Sketcher.Constraint("Block", 6),
    Sketcher.Constraint("Block", 7),
    Sketcher.Constraint("Block", 11),
    Sketcher.Constraint("Block", 12),
    Sketcher.Constraint("Block", 13),
    Sketcher.Constraint("Block", 14),
    Sketcher.Constraint("Block", 15),
    Sketcher.Constraint("Block", 16),
    Sketcher.Constraint("Coincident", 0, 2, 1, 1),
    Sketcher.Constraint("Coincident", 1, 2, 2, 2),
    Sketcher.Constraint("Coincident", 7, 1, 8, 1),
    Sketcher.Constraint("Coincident", 8, 2, 9, 1),
    Sketcher.Constraint("Coincident", 9, 2, 10, 1),
    Sketcher.Constraint("Coincident", 10, 2, 11, 2),
    Sketcher.Constraint("Coincident", 16, 1, 17, 1),
    Sketcher.Constraint("Coincident", 17, 2, 0, 1),
    Sketcher.Constraint("Vertical", 0),
    Sketcher.Constraint("Horizontal", 1),
    Sketcher.Constraint("Horizontal", 8),
    Sketcher.Constraint("Vertical", 9),
    Sketcher.Constraint("Horizontal", 10),
    Sketcher.Constraint("Horizontal", 17),
    Sketcher.Constraint("Vertical", 0, 2, 8, 2),
    Sketcher.Constraint("DistanceX", 1, 1, 1, 2, 1.415298),
])
pocket16 = doc.addObject("PartDesign::Pocket", "Pocket015")
body.addObject(pocket16)
pocket16.Profile = sketch17
pocket16.Type = "UpToFirst"

doc.recompute()
